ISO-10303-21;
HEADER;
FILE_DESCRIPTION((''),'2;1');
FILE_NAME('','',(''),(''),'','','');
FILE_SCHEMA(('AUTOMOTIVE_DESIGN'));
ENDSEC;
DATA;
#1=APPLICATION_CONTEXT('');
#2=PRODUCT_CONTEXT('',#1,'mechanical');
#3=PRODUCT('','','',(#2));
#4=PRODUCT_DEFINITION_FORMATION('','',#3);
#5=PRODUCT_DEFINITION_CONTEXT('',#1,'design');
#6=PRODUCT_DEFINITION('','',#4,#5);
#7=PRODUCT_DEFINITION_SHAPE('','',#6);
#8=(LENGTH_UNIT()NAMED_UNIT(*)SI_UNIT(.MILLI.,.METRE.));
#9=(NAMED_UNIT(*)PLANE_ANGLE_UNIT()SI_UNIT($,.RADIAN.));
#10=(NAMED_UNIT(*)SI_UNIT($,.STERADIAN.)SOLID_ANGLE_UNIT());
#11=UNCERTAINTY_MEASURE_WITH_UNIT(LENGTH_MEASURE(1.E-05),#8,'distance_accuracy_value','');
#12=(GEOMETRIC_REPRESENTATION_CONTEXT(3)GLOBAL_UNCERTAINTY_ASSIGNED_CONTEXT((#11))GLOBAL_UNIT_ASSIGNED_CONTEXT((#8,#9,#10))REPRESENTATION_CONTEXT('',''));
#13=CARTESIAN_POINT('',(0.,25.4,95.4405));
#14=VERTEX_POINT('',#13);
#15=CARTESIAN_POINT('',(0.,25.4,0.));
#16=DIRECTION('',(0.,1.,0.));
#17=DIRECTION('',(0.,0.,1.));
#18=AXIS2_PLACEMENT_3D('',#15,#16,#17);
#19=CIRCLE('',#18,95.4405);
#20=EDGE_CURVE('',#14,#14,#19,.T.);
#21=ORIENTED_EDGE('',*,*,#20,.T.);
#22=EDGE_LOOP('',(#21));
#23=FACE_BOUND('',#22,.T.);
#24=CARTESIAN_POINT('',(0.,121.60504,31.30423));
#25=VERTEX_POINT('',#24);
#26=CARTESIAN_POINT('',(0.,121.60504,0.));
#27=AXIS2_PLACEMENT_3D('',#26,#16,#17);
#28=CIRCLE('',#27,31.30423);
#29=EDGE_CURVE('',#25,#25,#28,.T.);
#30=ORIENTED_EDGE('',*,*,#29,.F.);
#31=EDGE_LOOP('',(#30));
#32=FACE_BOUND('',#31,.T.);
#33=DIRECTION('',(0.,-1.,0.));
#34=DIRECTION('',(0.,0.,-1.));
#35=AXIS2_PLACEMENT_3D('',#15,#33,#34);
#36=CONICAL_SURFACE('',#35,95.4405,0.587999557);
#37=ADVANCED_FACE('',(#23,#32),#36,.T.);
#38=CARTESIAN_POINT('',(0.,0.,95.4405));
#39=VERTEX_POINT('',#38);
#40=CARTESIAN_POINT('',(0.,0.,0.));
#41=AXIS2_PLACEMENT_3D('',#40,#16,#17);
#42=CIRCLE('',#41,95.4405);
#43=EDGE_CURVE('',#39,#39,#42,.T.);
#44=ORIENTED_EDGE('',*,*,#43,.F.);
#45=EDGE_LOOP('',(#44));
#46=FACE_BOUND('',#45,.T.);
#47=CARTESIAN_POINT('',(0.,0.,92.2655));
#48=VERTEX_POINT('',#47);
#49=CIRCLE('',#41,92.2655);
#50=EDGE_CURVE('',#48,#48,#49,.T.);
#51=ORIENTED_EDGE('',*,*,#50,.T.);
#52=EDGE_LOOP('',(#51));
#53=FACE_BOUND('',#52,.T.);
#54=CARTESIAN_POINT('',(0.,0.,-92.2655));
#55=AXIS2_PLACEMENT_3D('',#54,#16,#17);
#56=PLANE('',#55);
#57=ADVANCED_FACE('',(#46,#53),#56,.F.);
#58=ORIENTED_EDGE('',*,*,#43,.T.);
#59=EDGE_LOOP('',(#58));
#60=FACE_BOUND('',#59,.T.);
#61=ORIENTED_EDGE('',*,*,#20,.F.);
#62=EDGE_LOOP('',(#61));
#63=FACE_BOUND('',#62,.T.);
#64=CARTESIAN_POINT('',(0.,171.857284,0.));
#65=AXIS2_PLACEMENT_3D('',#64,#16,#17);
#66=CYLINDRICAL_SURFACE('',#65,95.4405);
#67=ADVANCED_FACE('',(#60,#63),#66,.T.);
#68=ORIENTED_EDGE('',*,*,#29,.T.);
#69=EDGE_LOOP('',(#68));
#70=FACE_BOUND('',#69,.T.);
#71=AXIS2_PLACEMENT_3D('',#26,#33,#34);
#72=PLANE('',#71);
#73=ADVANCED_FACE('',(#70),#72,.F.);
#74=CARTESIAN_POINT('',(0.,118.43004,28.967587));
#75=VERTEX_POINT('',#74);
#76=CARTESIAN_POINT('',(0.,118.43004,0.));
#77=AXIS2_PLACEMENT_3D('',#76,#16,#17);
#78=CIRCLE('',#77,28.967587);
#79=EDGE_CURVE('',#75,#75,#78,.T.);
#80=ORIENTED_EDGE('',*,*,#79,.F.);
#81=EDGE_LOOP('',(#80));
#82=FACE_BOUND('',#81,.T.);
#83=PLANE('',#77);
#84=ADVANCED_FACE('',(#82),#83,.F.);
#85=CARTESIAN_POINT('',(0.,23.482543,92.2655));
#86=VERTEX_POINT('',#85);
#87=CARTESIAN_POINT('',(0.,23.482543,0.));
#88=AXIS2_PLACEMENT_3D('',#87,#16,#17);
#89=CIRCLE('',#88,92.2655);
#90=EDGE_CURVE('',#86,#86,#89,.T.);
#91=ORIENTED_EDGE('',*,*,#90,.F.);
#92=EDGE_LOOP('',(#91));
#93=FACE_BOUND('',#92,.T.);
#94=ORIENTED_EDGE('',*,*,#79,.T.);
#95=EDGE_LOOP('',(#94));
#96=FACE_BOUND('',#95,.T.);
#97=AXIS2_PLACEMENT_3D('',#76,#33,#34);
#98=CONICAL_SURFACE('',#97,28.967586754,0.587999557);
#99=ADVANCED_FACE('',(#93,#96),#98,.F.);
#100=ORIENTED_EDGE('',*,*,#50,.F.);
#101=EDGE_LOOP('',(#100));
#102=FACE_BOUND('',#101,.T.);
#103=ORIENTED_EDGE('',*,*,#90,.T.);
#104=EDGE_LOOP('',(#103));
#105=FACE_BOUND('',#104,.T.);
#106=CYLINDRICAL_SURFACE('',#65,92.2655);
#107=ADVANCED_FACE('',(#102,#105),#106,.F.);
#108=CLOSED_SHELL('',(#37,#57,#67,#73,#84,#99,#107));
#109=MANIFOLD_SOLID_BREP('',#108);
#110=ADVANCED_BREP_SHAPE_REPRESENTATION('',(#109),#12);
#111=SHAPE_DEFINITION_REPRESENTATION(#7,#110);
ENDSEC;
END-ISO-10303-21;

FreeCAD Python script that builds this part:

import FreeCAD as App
import Part
import Sketcher

V = App.Vector
Q = App.Units.Quantity


def add_polygon(sketch, points):
    """Adds a closed chain of lines whose ends are joined by coincident constraints."""
    first, n = sketch.GeometryCount, len(points)
    for a, b in zip(points, points[1:] + points[:1]):
        sketch.addGeometry(Part.LineSegment(App.Vector(*a, 0), App.Vector(*b, 0)), False)
    for i in range(n):
        sketch.addConstraint(Sketcher.Constraint("Coincident", first + i, 2, first + (i + 1) % n, 1))

doc = App.newDocument("Part")
body = doc.addObject("PartDesign::Body", "Body")

# Sketch on YZ plane
sketch1 = doc.addObject("Sketcher::SketchObject", "Sketch")
body.addObject(sketch1)
sketch1.AttachmentSupport = (doc.YZ_Plane, [""])
sketch1.MapMode = "FlatFace"
add_polygon(sketch1, [(0, -95.4), (25.4, -95.4), (121.6, -31.3), (121.6, 0), (118.4, 0), (118.4, -29), (23.5, -92.3), (0, -92.3)])  # lines 0-7
sketch1.addConstraint(Sketcher.Constraint("Horizontal", 0))
sketch1.addConstraint(Sketcher.Constraint("Vertical", 2))
sketch1.addConstraint(Sketcher.Constraint("Horizontal", 3))
sketch1.addConstraint(Sketcher.Constraint("Vertical", 4))
sketch1.addConstraint(Sketcher.Constraint("Horizontal", 6))
sketch1.addConstraint(Sketcher.Constraint("Vertical", 7))
sketch1.addConstraint(Sketcher.Constraint("PointOnObject", 2, 2, -1))
sketch1.addConstraint(Sketcher.Constraint("PointOnObject", 6, 2, -2))
sketch1.addConstraint(Sketcher.Constraint("Parallel", 1, 5))
sketch1.addConstraint(Sketcher.Constraint("Equal", 3, 7))
sketch1.addConstraint(Sketcher.Constraint("DistanceX", 0, 1, 0, 2, Q("1 in")))
sketch1.addConstraint(Sketcher.Constraint("DistanceX", 3, 2, 3, 1, Q("0.125 in")))
sketch1.addConstraint(Sketcher.Constraint("DistanceY", 0, 2, -1, 1, Q("3.7575 in")))
sketch1.addConstraint(Sketcher.Constraint("DistanceX", -1, 1, 1, 2, Q("4.7876 in")))
sketch1.addConstraint(Sketcher.Constraint("DistanceY", 2, 1, 2, 2, 31.30423))
sketch1.addConstraint(Sketcher.Constraint("DistanceX", 6, 2, 6, 1, 23.482543))
revolution = doc.addObject("PartDesign::Revolution", "Revolution")
body.addObject(revolution)
revolution.Profile = sketch1
revolution.ReferenceAxis = (sketch1, ["H_Axis"])
revolution.Angle = 360

doc.recompute()
